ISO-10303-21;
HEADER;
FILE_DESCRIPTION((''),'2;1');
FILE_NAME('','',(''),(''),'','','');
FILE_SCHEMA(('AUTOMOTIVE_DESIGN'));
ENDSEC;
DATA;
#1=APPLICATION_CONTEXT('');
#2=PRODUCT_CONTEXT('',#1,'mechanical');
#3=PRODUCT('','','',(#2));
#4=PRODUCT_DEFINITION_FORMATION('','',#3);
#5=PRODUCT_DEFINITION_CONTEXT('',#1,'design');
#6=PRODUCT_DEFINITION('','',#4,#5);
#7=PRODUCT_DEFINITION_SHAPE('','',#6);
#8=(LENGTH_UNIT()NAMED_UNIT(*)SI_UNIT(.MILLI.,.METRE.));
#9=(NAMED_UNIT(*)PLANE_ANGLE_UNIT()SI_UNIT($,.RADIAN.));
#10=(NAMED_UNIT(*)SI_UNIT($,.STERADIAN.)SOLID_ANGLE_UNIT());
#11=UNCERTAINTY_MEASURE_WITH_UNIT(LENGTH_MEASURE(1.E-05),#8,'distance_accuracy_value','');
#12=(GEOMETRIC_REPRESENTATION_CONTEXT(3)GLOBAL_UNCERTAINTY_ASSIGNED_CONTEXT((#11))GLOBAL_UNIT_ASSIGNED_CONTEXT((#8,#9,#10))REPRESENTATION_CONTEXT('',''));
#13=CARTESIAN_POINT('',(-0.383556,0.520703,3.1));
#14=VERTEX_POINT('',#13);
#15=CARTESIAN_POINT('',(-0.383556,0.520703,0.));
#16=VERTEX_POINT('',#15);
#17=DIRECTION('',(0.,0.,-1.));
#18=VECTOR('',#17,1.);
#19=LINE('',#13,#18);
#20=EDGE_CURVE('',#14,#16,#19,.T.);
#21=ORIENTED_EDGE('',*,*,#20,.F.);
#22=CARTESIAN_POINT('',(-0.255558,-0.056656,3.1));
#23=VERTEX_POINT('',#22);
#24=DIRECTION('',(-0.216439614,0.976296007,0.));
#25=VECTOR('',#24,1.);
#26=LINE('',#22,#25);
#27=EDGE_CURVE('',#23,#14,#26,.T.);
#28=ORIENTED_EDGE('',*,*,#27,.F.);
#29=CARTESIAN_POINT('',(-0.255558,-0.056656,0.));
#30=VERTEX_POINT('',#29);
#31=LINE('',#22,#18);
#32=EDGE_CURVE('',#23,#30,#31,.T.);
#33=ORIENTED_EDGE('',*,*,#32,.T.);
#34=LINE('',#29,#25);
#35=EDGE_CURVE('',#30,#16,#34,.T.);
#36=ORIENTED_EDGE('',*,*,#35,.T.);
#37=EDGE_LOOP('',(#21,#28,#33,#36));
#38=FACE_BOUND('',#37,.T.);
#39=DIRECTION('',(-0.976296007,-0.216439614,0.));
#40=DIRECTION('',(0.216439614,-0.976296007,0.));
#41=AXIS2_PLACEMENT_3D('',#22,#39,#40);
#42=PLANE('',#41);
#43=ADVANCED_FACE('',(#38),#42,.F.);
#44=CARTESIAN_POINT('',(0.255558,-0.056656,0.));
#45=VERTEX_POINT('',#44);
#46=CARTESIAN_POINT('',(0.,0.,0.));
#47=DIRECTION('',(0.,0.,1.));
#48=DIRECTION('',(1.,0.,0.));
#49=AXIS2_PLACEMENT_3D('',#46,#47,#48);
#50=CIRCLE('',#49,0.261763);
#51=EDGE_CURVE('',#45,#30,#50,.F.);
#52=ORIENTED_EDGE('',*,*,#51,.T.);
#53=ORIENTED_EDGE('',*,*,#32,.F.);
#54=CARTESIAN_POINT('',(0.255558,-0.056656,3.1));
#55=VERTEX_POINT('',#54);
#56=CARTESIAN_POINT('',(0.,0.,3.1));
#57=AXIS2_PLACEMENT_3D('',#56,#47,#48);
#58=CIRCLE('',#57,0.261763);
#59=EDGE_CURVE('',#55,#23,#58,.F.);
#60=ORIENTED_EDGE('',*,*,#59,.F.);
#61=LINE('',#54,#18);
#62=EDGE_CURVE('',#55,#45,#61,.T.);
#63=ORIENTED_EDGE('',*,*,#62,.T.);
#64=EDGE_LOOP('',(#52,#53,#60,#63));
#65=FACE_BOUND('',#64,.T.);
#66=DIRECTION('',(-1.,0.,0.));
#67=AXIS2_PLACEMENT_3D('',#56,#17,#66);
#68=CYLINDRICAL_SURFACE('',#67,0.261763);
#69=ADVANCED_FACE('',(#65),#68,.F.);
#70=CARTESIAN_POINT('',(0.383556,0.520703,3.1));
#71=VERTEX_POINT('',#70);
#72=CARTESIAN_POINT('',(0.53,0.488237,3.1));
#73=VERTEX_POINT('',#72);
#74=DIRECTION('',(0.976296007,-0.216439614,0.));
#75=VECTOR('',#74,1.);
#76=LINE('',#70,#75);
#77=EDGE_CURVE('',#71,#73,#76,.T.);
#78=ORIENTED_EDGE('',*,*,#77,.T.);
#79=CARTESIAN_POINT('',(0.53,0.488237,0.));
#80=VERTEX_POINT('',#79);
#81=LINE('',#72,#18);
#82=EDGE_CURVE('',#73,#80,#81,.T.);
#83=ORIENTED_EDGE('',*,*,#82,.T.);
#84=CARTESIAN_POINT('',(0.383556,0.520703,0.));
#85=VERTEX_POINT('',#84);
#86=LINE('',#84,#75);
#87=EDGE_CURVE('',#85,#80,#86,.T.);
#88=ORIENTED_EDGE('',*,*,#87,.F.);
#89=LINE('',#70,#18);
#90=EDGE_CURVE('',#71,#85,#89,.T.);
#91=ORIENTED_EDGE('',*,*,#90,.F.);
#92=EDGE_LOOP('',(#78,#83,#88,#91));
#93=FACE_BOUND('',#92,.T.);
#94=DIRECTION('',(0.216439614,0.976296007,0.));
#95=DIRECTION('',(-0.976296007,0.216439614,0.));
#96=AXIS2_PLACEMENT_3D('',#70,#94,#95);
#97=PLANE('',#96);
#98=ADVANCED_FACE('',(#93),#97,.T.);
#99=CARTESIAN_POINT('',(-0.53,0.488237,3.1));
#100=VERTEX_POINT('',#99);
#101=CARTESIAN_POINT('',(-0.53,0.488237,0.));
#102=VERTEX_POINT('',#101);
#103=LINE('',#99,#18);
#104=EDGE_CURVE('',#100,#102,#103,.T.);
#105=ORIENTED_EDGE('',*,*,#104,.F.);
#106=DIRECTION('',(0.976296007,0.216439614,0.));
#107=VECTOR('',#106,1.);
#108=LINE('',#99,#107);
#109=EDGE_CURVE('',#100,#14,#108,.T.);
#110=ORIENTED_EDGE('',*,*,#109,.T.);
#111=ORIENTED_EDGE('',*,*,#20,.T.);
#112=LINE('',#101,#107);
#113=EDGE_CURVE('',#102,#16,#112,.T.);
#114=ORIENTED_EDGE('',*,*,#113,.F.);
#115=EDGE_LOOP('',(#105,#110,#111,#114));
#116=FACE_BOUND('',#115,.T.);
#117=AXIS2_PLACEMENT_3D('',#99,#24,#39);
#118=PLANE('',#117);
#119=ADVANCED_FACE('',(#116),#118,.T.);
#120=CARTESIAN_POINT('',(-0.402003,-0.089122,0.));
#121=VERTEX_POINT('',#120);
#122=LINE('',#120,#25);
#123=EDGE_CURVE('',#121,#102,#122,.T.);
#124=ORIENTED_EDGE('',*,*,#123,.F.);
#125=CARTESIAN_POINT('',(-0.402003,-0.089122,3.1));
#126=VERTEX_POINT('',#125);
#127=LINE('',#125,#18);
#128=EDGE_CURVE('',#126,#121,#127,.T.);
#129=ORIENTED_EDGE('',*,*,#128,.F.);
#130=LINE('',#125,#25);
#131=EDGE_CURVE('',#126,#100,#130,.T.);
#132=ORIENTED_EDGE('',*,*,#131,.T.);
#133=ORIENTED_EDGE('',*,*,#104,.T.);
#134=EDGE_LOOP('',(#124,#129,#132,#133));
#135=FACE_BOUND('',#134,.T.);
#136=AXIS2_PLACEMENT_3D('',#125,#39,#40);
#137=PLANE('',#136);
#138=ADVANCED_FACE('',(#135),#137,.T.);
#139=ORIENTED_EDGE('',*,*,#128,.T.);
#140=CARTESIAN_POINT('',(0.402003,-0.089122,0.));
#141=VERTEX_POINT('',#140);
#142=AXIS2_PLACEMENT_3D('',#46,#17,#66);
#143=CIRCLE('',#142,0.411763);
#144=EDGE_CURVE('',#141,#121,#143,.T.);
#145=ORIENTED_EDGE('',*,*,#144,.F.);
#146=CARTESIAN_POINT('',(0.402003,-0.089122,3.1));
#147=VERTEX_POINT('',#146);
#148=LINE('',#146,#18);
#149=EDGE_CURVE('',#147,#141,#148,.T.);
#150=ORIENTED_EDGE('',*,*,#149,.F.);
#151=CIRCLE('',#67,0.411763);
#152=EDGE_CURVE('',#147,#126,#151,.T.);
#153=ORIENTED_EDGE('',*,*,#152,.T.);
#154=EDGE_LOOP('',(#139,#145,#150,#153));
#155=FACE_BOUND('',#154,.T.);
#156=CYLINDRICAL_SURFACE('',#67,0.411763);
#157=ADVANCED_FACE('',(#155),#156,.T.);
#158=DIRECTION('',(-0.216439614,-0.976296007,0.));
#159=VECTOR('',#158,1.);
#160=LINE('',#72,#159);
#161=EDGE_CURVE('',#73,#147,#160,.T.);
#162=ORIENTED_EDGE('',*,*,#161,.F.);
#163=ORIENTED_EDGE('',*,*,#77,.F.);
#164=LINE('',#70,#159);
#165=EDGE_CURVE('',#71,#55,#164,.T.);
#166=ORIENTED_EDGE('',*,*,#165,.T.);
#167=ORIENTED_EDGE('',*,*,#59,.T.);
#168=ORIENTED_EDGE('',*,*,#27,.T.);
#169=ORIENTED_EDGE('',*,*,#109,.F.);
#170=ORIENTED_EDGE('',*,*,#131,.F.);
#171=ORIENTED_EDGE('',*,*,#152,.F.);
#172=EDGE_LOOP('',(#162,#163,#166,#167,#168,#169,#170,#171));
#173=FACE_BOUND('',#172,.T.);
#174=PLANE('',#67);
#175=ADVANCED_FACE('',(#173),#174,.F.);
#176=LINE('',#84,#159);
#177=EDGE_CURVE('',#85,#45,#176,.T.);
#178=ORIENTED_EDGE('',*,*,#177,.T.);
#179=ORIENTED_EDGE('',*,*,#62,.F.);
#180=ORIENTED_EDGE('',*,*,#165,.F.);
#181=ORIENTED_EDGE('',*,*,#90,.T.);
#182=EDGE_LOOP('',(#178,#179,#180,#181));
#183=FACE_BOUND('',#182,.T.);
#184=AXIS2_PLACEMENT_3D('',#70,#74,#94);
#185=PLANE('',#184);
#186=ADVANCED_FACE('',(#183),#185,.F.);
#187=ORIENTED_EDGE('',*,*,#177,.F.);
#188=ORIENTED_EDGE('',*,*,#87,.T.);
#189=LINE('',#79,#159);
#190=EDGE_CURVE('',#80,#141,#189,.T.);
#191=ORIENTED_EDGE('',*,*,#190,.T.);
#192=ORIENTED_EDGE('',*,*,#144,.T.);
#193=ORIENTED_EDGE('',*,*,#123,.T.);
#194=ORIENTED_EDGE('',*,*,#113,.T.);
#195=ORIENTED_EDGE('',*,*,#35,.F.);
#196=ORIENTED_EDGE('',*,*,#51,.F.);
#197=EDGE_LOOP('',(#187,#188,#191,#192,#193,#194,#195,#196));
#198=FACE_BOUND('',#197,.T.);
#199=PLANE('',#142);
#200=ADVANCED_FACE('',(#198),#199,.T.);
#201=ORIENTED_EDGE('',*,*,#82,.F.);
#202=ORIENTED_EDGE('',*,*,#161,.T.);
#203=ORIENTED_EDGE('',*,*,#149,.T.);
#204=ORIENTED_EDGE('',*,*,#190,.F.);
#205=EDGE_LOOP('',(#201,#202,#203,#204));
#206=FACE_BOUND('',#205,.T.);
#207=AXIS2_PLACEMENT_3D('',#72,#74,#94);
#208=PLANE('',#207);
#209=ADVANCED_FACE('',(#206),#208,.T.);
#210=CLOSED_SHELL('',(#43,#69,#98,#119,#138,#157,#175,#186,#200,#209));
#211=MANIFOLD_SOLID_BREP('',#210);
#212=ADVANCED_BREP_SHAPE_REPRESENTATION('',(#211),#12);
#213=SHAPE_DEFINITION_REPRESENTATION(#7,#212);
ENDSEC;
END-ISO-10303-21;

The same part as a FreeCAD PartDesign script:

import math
import FreeCAD as App
import Part
import Sketcher
Q = App.Units.Quantity

doc = App.newDocument("Part")
body = doc.addObject("PartDesign::Body", "Body")

# Sketch on XY plane
sketch1 = body.newObject("Sketcher::SketchObject", "Sketch")
sketch1.AttachmentSupport = (doc.getObject("XY_Plane"), [""])
sketch1.MapMode = "FlatFace"
sketch1.addGeometry([
    Part.LineSegment(App.Vector(0.4, -0.09, 0), App.Vector(0.53, 0.49, 0)),  # 0
    Part.LineSegment(App.Vector(0.53, 0.49, 0), App.Vector(0.38, 0.52, 0)),  # 1
    Part.LineSegment(App.Vector(0.38, 0.52, 0), App.Vector(0.26, -0.06, 0)),  # 2
    Part.ArcOfCircle(Part.Circle(App.Vector(0, 0, 0), App.Vector(0, 0, 1), 0.26), math.radians(-168), math.radians(-12)),  # 3
    Part.LineSegment(App.Vector(-0.26, -0.06, 0), App.Vector(-0.38, 0.52, 0)),  # 4
    Part.LineSegment(App.Vector(-0.38, 0.52, 0), App.Vector(-0.53, 0.49, 0)),  # 5
    Part.LineSegment(App.Vector(-0.53, 0.49, 0), App.Vector(-0.4, -0.09, 0)),  # 6
    Part.ArcOfCircle(Part.Circle(App.Vector(0, 0, 0), App.Vector(0, 0, 1), 0.41), math.radians(-167), math.radians(-13)),  # 7
], False)
sketch1.addConstraint([
    Sketcher.Constraint("Coincident", 0, 2, 1, 1),
    Sketcher.Constraint("Coincident", 1, 2, 2, 1),
    Sketcher.Constraint("Tangent", 2, 2, 3, 2),
    Sketcher.Constraint("Tangent", 3, 1, 4, 1),
    Sketcher.Constraint("Coincident", 4, 2, 5, 1),
    Sketcher.Constraint("Coincident", 5, 2, 6, 1),
    Sketcher.Constraint("Tangent", 6, 2, 7, 1),
    Sketcher.Constraint("Tangent", 7, 2, 0, 1),
    Sketcher.Constraint("Coincident", 3, 3, -1, 1),
    Sketcher.Constraint("Coincident", 7, 3, -1, 1),
    Sketcher.Constraint("Symmetric", 1, 2, 4, 2, -2),
    Sketcher.Constraint("Symmetric", 0, 2, 5, 2, -2),
    Sketcher.Constraint("Perpendicular", 0, 1),
    Sketcher.Constraint("Perpendicular", 1, 2),
    Sketcher.Constraint("Angle", 0, Q("77.5 deg")),
    Sketcher.Constraint("Distance", 1, Q("0.15 mm")),
    Sketcher.Constraint("DistanceX", -1, 1, 0, 2, Q("0.53 mm")),
    Sketcher.Constraint("Radius", 3, Q("0.261763 mm")),
])
pad1 = body.newObject("PartDesign::Pad", "Pad")
pad1.Profile = sketch1
pad1.Length = 3.1

doc.recompute()
